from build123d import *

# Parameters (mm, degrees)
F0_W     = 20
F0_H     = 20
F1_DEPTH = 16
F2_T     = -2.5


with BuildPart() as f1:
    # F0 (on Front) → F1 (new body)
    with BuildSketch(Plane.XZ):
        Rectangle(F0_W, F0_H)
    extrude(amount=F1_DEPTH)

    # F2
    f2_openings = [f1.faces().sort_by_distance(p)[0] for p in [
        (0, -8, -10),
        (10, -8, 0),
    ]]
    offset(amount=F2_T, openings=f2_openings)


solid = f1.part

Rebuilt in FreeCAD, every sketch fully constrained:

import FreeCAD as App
import Part
import Sketcher


def faces_at(feature, points):
    """Names of the faces that lie closest to the given points."""
    faces = feature.Shape.Faces
    near = lambda p: min(range(len(faces)), key=lambda i: faces[i].distToShape(Part.Vertex(*p))[0])
    return sorted({f"Face{near(p) + 1}" for p in points})


def add_polygon(sketch, points):
    """Adds a closed chain of lines whose ends are joined by coincident constraints."""
    first, n = sketch.GeometryCount, len(points)
    for a, b in zip(points, points[1:] + points[:1]):
        sketch.addGeometry(Part.LineSegment(App.Vector(*a, 0), App.Vector(*b, 0)), False)
    for i in range(n):
        sketch.addConstraint(Sketcher.Constraint("Coincident", first + i, 2, first + (i + 1) % n, 1))

doc = App.newDocument("Part")
body = doc.addObject("PartDesign::Body", "Body")

# Sketch on XZ plane
sketch1 = body.newObject("Sketcher::SketchObject", "Sketch")
sketch1.AttachmentSupport = (doc.getObject("XZ_Plane"), [""])
sketch1.MapMode = "FlatFace"
add_polygon(sketch1, [(-10, 10), (-10, -10), (10, -10), (10, 10)])  # lines 0-3
sketch1.addConstraint([
    Sketcher.Constraint("Vertical", 0),
    Sketcher.Constraint("Horizontal", 1),
    Sketcher.Constraint("Vertical", 2),
    Sketcher.Constraint("Horizontal", 3),
    Sketcher.Constraint("Symmetric", 0, 2, 2, 2, -1, 1),
    Sketcher.Constraint("Equal", 3, 0),
    Sketcher.Constraint("DistanceX", 1, 1, 1, 2, 20.0),
])
pad1 = body.newObject("PartDesign::Pad", "Pad")
pad1.Profile = sketch1
pad1.Length = 16
doc.recompute()

thickness = body.newObject("PartDesign::Thickness", "Thickness")
thickness.Base = (pad1, faces_at(pad1, [(0, -8, -10), (10, -8, 0)]))
thickness.Value = 2.5
thickness.Reversed = True
thickness.Join = "Arc"

doc.recompute()
